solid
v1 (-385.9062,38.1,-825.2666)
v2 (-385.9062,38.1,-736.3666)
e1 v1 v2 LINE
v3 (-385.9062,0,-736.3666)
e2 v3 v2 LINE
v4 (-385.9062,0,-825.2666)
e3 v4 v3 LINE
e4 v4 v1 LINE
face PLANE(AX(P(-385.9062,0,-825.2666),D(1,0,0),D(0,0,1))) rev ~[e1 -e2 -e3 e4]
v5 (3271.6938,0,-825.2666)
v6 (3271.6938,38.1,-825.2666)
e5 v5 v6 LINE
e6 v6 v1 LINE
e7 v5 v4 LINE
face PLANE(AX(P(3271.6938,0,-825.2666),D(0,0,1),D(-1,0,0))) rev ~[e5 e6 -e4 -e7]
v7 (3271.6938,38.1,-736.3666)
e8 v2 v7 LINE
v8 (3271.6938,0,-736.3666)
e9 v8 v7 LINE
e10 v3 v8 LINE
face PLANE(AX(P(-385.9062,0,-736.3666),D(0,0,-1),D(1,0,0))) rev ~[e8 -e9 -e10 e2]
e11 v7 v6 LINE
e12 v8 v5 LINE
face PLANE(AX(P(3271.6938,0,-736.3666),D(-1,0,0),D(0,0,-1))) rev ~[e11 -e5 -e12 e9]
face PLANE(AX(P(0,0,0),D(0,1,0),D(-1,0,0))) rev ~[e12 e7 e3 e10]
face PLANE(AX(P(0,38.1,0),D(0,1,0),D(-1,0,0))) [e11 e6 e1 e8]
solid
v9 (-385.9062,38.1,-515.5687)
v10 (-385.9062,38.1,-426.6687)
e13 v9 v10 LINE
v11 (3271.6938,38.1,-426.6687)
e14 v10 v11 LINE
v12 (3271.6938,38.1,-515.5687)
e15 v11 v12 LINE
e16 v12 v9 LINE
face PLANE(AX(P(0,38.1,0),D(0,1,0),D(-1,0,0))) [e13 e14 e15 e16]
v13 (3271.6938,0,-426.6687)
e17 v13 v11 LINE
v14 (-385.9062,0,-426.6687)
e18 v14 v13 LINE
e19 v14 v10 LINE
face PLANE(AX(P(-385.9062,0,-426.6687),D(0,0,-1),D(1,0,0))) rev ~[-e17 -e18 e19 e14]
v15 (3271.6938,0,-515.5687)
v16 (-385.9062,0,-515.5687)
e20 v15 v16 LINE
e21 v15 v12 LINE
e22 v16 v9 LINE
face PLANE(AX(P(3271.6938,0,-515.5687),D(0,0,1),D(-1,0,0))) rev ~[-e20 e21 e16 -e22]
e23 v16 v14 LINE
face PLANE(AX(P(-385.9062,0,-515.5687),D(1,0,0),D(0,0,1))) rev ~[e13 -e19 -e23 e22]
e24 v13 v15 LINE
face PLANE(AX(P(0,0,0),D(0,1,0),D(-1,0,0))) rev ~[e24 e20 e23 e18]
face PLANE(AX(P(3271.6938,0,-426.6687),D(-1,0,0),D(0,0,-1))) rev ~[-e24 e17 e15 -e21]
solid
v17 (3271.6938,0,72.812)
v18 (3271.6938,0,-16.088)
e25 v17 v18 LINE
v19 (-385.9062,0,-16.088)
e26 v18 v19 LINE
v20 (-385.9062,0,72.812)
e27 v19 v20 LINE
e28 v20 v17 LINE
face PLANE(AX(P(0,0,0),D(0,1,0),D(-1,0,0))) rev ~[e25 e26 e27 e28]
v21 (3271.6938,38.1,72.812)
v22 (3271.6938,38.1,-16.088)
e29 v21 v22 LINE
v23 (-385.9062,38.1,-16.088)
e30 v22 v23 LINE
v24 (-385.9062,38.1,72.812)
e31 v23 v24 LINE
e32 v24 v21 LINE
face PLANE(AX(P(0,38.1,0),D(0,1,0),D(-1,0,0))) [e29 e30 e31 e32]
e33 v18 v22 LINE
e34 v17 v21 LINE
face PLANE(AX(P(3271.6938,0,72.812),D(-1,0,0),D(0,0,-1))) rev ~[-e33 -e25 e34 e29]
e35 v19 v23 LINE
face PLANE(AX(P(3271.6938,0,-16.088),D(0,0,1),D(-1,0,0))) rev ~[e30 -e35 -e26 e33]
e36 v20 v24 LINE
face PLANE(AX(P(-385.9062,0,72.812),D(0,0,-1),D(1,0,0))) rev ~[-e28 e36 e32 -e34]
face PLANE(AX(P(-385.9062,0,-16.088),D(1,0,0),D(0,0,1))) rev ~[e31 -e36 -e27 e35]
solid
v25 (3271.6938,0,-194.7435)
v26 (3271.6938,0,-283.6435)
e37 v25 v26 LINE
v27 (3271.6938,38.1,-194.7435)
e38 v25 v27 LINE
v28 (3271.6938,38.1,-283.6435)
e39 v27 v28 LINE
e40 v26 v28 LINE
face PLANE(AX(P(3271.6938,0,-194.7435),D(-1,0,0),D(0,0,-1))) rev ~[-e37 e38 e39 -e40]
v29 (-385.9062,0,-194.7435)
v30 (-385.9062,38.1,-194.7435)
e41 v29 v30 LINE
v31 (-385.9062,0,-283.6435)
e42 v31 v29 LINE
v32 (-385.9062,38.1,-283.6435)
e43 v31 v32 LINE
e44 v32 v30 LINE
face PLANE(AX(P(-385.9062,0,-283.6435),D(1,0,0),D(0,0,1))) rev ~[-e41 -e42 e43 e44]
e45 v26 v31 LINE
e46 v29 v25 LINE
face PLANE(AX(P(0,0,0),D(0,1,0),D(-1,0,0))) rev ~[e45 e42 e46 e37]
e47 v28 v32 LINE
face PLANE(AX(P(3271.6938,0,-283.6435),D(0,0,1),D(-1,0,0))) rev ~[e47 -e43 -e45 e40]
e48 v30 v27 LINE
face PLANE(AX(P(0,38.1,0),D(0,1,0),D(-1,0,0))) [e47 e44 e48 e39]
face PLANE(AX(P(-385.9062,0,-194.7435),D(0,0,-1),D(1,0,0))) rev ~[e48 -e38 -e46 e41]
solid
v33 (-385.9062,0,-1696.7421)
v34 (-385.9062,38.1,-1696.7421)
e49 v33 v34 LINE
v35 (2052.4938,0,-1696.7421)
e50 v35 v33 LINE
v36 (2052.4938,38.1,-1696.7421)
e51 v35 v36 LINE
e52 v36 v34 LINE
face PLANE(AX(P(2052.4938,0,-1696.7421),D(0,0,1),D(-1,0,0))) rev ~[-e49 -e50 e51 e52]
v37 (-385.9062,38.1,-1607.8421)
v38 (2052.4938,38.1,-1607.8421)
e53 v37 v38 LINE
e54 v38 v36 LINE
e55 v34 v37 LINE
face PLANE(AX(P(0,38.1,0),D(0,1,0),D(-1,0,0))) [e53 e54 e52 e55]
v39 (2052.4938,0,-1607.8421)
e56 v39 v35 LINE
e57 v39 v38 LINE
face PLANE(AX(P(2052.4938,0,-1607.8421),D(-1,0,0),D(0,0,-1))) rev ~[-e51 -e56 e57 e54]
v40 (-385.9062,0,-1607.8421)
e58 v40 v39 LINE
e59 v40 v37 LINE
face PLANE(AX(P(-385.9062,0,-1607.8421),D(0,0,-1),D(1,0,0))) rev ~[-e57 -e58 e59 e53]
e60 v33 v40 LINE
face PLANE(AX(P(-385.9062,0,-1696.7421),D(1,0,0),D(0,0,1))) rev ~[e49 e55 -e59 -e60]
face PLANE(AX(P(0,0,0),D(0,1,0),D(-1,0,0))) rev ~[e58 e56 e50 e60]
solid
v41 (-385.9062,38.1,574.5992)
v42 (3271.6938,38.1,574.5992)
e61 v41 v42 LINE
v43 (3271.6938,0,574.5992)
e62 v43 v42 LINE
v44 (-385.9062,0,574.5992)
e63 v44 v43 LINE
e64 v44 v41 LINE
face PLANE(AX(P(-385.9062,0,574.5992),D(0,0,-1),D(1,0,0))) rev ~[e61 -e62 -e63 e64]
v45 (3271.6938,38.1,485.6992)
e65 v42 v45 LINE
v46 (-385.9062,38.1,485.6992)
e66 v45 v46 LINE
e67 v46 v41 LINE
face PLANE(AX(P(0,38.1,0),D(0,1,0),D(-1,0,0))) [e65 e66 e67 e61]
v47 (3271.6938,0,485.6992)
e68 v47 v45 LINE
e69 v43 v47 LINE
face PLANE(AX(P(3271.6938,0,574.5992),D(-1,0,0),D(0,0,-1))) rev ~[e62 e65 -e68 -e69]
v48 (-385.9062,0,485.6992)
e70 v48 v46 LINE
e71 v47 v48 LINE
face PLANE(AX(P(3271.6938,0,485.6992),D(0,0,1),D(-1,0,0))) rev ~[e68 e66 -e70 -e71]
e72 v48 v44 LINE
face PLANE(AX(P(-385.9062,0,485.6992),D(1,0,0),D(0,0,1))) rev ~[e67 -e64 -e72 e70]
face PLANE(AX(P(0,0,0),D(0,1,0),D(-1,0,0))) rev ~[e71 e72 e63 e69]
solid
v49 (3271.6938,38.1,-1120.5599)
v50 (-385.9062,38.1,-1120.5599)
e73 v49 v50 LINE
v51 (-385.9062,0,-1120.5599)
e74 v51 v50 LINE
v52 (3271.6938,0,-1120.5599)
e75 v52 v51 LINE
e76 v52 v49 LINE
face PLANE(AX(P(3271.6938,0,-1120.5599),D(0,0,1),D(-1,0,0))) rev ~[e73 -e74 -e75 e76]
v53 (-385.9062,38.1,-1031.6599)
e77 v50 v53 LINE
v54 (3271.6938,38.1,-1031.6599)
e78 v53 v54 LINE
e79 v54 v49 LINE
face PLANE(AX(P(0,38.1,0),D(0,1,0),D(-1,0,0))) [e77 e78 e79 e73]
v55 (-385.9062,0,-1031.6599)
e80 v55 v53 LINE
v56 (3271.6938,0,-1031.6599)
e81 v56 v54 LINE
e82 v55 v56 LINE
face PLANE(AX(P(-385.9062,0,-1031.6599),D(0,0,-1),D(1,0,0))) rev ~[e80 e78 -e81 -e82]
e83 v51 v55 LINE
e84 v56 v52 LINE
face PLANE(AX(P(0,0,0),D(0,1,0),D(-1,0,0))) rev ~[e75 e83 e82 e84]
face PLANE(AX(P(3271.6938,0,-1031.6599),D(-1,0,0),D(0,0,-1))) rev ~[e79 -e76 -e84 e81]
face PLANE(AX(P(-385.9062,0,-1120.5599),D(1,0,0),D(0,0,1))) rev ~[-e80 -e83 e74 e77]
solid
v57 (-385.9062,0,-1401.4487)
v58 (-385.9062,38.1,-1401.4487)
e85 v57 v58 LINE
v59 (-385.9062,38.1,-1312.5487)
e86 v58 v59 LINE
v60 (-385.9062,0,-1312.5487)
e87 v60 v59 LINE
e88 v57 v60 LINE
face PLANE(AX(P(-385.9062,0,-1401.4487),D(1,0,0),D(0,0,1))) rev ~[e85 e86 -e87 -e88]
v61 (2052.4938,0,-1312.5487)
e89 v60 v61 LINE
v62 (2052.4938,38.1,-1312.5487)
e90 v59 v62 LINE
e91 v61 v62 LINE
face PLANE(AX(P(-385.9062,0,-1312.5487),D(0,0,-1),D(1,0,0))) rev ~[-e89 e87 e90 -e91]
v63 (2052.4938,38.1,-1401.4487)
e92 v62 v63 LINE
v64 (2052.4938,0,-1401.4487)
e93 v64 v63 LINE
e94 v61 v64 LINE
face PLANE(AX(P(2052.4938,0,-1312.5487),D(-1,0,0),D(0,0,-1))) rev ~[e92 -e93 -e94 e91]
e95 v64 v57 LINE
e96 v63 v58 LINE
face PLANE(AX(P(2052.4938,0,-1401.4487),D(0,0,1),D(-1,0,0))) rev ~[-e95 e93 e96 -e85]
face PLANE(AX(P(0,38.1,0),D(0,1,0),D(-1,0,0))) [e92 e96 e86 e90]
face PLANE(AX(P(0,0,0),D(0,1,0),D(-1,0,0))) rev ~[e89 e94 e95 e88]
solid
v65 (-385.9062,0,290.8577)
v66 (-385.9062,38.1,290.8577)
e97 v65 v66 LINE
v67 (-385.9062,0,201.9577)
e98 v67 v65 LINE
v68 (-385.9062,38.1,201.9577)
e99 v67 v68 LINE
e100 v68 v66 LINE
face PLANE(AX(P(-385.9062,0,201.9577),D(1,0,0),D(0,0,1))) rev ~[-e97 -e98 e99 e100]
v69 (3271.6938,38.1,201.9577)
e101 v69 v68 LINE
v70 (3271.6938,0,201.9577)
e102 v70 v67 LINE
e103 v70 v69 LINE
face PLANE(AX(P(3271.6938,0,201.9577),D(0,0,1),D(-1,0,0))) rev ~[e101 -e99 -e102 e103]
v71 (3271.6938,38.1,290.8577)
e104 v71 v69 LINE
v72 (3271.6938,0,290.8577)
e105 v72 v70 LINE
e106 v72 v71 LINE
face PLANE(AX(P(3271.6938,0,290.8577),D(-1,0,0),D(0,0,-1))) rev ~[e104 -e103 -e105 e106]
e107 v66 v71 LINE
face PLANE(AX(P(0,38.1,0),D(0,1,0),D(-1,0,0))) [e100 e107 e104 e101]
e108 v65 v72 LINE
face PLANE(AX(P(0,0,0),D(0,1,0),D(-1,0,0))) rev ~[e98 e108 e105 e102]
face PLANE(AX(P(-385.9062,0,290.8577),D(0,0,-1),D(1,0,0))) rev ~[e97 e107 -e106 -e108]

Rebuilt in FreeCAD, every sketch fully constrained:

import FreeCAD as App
import Part
import Sketcher

V = App.Vector
Q = App.Units.Quantity


def add_polygon(sketch, points):
    """Adds a closed chain of lines whose ends are joined by coincident constraints."""
    first, n = sketch.GeometryCount, len(points)
    for a, b in zip(points, points[1:] + points[:1]):
        sketch.addGeometry(Part.LineSegment(App.Vector(*a, 0), App.Vector(*b, 0)), False)
    for i in range(n):
        sketch.addConstraint(Sketcher.Constraint("Coincident", first + i, 2, first + (i + 1) % n, 1))

doc = App.newDocument("Part")
params = doc.addObject("Spreadsheet::Sheet", "Params")
for row, (alias, value) in enumerate([
    ("sketch1_width", "144 in"),
    ("sketch1_width2", "96 in"),
    ("sketch1_height", "3.5 in"),
    ("pad1_length", "1.5 in"),
], start=1):
    params.set(f"A{row}", alias)
    params.set(f"B{row}", "=" + value)
    params.setAlias(f"B{row}", alias)

body = doc.addObject("PartDesign::Body", "Body")
body.AllowCompound = True

sketch1 = doc.addObject("Sketcher::SketchObject", "Sketch")
body.addObject(sketch1)
sketch1.AttachmentSupport = (doc.XZ_Plane, [""])
sketch1.MapMode = "FlatFace"
add_polygon(sketch1, [(-386, 486), (-386, 575), (3272, 575), (3272, 486)])
add_polygon(sketch1, [(-386, 202), (-386, 291), (3272, 291), (3272, 202)])
add_polygon(sketch1, [(-386, -16), (-386, 73), (3272, 73), (3272, -16)])
add_polygon(sketch1, [(-386, -284), (-386, -195), (3272, -195), (3272, -284)])
add_polygon(sketch1, [(-386, -516), (-386, -427), (3272, -427), (3272, -516)])
add_polygon(sketch1, [(-386, -825), (-386, -736), (3272, -736), (3272, -825)])
add_polygon(sketch1, [(-386, -1121), (-386, -1032), (3272, -1032), (3272, -1121)])
add_polygon(sketch1, [(-386, -1401), (-386, -1313), (2052, -1313), (2052, -1401)])
add_polygon(sketch1, [(-386, -1697), (-386, -1608), (2052, -1608), (2052, -1697)])
sketch1.addConstraint([
    Sketcher.Constraint("Vertical", 0),
    Sketcher.Constraint("Horizontal", 1),
    Sketcher.Constraint("Vertical", 2),
    Sketcher.Constraint("Horizontal", 3),
    Sketcher.Constraint("Vertical", 4),
    Sketcher.Constraint("Horizontal", 5),
    Sketcher.Constraint("Vertical", 6),
    Sketcher.Constraint("Horizontal", 7),
    Sketcher.Constraint("Vertical", 8),
    Sketcher.Constraint("Horizontal", 9),
    Sketcher.Constraint("Vertical", 10),
    Sketcher.Constraint("Horizontal", 11),
    Sketcher.Constraint("Vertical", 12),
    Sketcher.Constraint("Horizontal", 13),
    Sketcher.Constraint("Vertical", 14),
    Sketcher.Constraint("Horizontal", 15),
    Sketcher.Constraint("Vertical", 16),
    Sketcher.Constraint("Horizontal", 17),
    Sketcher.Constraint("Vertical", 18),
    Sketcher.Constraint("Horizontal", 19),
    Sketcher.Constraint("Vertical", 20),
    Sketcher.Constraint("Horizontal", 21),
    Sketcher.Constraint("Vertical", 22),
    Sketcher.Constraint("Horizontal", 23),
    Sketcher.Constraint("Vertical", 24),
    Sketcher.Constraint("Horizontal", 25),
    Sketcher.Constraint("Vertical", 26),
    Sketcher.Constraint("Horizontal", 27),
    Sketcher.Constraint("Vertical", 28),
    Sketcher.Constraint("Horizontal", 29),
    Sketcher.Constraint("Vertical", 30),
    Sketcher.Constraint("Horizontal", 31),
    Sketcher.Constraint("Vertical", 32),
    Sketcher.Constraint("Horizontal", 33),
    Sketcher.Constraint("Vertical", 34),
    Sketcher.Constraint("Horizontal", 35),
    Sketcher.Constraint("Vertical", 3, 2, 4, 2),
    Sketcher.Constraint("Vertical", 2, 2, 5, 2),
    Sketcher.Constraint("Vertical", 7, 2, 8, 2),
    Sketcher.Constraint("Vertical", 6, 2, 9, 2),
    Sketcher.Constraint("Vertical", 11, 2, 12, 2),
    Sketcher.Constraint("Vertical", 10, 2, 13, 2),
    Sketcher.Constraint("Vertical", 15, 2, 16, 2),
    Sketcher.Constraint("Vertical", 14, 2, 17, 2),
    Sketcher.Constraint("Vertical", 19, 2, 20, 2),
    Sketcher.Constraint("Vertical", 18, 2, 21, 2),
    Sketcher.Constraint("Vertical", 23, 2, 24, 2),
    Sketcher.Constraint("Vertical", 22, 2, 25, 2),
    Sketcher.Constraint("Vertical", 27, 2, 28, 2),
    Sketcher.Constraint("Vertical", 31, 2, 32, 2),
    Sketcher.Constraint("Vertical", 30, 2, 33, 2),
    Sketcher.Constraint("Equal", 2, 4),
    Sketcher.Constraint("Equal", 6, 8),
    Sketcher.Constraint("Equal", 10, 12),
    Sketcher.Constraint("Equal", 14, 16),
    Sketcher.Constraint("Equal", 18, 20),
    Sketcher.Constraint("Equal", 22, 24),
    Sketcher.Constraint("Equal", 26, 28),
    Sketcher.Constraint("Equal", 30, 32),
    Sketcher.Constraint("DistanceX", 1, 1, 1, 2, Q("144 in")),
    Sketcher.Constraint("DistanceX", 29, 1, 29, 2, Q("96 in")),
    Sketcher.Constraint("DistanceY", 0, 1, 0, 2, Q("3.5 in")),
    Sketcher.Constraint("DistanceY", -1, 1, 4, 2, Q("11.4511 in")),
    Sketcher.Constraint("DistanceY", 20, 2, -1, 1, Q("28.9908 in")),
    Sketcher.Constraint("DistanceY", 8, 2, 3, 2, Q("16.2554 in")),
    Sketcher.Constraint("DistanceY", 16, 2, 11, 2, Q("16.1646 in")),
    Sketcher.Constraint("DistanceX", 0, 2, -1, 1, 385.9062),
    Sketcher.Constraint("DistanceY", -1, 1, 0, 2, 574.5992),
    Sketcher.Constraint("DistanceY", 12, 2, -1, 1, 194.7435),
    Sketcher.Constraint("DistanceY", 24, 2, -1, 1, 1031.66),
    Sketcher.Constraint("DistanceY", 28, 2, -1, 1, 1312.5487),
    Sketcher.Constraint("DistanceY", 32, 2, -1, 1, 1607.842),
])
sketch1.setExpression("Constraints[95]", "Params.sketch1_width")
sketch1.setExpression("Constraints[96]", "Params.sketch1_width2")
sketch1.setExpression("Constraints[97]", "Params.sketch1_height")
pad1 = doc.addObject("PartDesign::Pad", "Pad")
body.addObject(pad1)
pad1.Profile = sketch1
pad1.setExpression("Length", "Params.pad1_length")
pad1.Reversed = True

doc.recompute()
